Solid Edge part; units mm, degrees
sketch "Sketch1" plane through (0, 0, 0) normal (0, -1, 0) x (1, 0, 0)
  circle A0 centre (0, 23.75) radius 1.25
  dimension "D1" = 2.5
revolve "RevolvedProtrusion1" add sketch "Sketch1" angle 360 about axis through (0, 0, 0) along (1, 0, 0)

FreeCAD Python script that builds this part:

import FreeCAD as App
import Part
import Sketcher
from FreeCAD import Vector
Q = App.Units.Quantity

doc = App.newDocument("Part")
body = doc.addObject("PartDesign::Body", "Body")

sketch1 = body.newObject("Sketcher::SketchObject", "Sketch")
sketch1.AttachmentSupport = (doc.getObject("XZ_Plane"), [""])
sketch1.MapMode = "FlatFace"
sketch1.addGeometry(Part.Circle(Vector(0, 23.75, 0), Vector(0, 0, 1), 1.25), False)
sketch1.addConstraint([
    Sketcher.Constraint("PointOnObject", 0, 3, -2),
    Sketcher.Constraint("Diameter", 0, Q("2.5 mm")),
    Sketcher.Constraint("DistanceY", -1, 1, 0, 3, Q("23.75 mm")),
])
revolution = body.newObject("PartDesign::Revolution", "Revolution")
revolution.Profile = sketch1
revolution.ReferenceAxis = (sketch1, ["H_Axis"])
revolution.Angle = 360

doc.recompute()
